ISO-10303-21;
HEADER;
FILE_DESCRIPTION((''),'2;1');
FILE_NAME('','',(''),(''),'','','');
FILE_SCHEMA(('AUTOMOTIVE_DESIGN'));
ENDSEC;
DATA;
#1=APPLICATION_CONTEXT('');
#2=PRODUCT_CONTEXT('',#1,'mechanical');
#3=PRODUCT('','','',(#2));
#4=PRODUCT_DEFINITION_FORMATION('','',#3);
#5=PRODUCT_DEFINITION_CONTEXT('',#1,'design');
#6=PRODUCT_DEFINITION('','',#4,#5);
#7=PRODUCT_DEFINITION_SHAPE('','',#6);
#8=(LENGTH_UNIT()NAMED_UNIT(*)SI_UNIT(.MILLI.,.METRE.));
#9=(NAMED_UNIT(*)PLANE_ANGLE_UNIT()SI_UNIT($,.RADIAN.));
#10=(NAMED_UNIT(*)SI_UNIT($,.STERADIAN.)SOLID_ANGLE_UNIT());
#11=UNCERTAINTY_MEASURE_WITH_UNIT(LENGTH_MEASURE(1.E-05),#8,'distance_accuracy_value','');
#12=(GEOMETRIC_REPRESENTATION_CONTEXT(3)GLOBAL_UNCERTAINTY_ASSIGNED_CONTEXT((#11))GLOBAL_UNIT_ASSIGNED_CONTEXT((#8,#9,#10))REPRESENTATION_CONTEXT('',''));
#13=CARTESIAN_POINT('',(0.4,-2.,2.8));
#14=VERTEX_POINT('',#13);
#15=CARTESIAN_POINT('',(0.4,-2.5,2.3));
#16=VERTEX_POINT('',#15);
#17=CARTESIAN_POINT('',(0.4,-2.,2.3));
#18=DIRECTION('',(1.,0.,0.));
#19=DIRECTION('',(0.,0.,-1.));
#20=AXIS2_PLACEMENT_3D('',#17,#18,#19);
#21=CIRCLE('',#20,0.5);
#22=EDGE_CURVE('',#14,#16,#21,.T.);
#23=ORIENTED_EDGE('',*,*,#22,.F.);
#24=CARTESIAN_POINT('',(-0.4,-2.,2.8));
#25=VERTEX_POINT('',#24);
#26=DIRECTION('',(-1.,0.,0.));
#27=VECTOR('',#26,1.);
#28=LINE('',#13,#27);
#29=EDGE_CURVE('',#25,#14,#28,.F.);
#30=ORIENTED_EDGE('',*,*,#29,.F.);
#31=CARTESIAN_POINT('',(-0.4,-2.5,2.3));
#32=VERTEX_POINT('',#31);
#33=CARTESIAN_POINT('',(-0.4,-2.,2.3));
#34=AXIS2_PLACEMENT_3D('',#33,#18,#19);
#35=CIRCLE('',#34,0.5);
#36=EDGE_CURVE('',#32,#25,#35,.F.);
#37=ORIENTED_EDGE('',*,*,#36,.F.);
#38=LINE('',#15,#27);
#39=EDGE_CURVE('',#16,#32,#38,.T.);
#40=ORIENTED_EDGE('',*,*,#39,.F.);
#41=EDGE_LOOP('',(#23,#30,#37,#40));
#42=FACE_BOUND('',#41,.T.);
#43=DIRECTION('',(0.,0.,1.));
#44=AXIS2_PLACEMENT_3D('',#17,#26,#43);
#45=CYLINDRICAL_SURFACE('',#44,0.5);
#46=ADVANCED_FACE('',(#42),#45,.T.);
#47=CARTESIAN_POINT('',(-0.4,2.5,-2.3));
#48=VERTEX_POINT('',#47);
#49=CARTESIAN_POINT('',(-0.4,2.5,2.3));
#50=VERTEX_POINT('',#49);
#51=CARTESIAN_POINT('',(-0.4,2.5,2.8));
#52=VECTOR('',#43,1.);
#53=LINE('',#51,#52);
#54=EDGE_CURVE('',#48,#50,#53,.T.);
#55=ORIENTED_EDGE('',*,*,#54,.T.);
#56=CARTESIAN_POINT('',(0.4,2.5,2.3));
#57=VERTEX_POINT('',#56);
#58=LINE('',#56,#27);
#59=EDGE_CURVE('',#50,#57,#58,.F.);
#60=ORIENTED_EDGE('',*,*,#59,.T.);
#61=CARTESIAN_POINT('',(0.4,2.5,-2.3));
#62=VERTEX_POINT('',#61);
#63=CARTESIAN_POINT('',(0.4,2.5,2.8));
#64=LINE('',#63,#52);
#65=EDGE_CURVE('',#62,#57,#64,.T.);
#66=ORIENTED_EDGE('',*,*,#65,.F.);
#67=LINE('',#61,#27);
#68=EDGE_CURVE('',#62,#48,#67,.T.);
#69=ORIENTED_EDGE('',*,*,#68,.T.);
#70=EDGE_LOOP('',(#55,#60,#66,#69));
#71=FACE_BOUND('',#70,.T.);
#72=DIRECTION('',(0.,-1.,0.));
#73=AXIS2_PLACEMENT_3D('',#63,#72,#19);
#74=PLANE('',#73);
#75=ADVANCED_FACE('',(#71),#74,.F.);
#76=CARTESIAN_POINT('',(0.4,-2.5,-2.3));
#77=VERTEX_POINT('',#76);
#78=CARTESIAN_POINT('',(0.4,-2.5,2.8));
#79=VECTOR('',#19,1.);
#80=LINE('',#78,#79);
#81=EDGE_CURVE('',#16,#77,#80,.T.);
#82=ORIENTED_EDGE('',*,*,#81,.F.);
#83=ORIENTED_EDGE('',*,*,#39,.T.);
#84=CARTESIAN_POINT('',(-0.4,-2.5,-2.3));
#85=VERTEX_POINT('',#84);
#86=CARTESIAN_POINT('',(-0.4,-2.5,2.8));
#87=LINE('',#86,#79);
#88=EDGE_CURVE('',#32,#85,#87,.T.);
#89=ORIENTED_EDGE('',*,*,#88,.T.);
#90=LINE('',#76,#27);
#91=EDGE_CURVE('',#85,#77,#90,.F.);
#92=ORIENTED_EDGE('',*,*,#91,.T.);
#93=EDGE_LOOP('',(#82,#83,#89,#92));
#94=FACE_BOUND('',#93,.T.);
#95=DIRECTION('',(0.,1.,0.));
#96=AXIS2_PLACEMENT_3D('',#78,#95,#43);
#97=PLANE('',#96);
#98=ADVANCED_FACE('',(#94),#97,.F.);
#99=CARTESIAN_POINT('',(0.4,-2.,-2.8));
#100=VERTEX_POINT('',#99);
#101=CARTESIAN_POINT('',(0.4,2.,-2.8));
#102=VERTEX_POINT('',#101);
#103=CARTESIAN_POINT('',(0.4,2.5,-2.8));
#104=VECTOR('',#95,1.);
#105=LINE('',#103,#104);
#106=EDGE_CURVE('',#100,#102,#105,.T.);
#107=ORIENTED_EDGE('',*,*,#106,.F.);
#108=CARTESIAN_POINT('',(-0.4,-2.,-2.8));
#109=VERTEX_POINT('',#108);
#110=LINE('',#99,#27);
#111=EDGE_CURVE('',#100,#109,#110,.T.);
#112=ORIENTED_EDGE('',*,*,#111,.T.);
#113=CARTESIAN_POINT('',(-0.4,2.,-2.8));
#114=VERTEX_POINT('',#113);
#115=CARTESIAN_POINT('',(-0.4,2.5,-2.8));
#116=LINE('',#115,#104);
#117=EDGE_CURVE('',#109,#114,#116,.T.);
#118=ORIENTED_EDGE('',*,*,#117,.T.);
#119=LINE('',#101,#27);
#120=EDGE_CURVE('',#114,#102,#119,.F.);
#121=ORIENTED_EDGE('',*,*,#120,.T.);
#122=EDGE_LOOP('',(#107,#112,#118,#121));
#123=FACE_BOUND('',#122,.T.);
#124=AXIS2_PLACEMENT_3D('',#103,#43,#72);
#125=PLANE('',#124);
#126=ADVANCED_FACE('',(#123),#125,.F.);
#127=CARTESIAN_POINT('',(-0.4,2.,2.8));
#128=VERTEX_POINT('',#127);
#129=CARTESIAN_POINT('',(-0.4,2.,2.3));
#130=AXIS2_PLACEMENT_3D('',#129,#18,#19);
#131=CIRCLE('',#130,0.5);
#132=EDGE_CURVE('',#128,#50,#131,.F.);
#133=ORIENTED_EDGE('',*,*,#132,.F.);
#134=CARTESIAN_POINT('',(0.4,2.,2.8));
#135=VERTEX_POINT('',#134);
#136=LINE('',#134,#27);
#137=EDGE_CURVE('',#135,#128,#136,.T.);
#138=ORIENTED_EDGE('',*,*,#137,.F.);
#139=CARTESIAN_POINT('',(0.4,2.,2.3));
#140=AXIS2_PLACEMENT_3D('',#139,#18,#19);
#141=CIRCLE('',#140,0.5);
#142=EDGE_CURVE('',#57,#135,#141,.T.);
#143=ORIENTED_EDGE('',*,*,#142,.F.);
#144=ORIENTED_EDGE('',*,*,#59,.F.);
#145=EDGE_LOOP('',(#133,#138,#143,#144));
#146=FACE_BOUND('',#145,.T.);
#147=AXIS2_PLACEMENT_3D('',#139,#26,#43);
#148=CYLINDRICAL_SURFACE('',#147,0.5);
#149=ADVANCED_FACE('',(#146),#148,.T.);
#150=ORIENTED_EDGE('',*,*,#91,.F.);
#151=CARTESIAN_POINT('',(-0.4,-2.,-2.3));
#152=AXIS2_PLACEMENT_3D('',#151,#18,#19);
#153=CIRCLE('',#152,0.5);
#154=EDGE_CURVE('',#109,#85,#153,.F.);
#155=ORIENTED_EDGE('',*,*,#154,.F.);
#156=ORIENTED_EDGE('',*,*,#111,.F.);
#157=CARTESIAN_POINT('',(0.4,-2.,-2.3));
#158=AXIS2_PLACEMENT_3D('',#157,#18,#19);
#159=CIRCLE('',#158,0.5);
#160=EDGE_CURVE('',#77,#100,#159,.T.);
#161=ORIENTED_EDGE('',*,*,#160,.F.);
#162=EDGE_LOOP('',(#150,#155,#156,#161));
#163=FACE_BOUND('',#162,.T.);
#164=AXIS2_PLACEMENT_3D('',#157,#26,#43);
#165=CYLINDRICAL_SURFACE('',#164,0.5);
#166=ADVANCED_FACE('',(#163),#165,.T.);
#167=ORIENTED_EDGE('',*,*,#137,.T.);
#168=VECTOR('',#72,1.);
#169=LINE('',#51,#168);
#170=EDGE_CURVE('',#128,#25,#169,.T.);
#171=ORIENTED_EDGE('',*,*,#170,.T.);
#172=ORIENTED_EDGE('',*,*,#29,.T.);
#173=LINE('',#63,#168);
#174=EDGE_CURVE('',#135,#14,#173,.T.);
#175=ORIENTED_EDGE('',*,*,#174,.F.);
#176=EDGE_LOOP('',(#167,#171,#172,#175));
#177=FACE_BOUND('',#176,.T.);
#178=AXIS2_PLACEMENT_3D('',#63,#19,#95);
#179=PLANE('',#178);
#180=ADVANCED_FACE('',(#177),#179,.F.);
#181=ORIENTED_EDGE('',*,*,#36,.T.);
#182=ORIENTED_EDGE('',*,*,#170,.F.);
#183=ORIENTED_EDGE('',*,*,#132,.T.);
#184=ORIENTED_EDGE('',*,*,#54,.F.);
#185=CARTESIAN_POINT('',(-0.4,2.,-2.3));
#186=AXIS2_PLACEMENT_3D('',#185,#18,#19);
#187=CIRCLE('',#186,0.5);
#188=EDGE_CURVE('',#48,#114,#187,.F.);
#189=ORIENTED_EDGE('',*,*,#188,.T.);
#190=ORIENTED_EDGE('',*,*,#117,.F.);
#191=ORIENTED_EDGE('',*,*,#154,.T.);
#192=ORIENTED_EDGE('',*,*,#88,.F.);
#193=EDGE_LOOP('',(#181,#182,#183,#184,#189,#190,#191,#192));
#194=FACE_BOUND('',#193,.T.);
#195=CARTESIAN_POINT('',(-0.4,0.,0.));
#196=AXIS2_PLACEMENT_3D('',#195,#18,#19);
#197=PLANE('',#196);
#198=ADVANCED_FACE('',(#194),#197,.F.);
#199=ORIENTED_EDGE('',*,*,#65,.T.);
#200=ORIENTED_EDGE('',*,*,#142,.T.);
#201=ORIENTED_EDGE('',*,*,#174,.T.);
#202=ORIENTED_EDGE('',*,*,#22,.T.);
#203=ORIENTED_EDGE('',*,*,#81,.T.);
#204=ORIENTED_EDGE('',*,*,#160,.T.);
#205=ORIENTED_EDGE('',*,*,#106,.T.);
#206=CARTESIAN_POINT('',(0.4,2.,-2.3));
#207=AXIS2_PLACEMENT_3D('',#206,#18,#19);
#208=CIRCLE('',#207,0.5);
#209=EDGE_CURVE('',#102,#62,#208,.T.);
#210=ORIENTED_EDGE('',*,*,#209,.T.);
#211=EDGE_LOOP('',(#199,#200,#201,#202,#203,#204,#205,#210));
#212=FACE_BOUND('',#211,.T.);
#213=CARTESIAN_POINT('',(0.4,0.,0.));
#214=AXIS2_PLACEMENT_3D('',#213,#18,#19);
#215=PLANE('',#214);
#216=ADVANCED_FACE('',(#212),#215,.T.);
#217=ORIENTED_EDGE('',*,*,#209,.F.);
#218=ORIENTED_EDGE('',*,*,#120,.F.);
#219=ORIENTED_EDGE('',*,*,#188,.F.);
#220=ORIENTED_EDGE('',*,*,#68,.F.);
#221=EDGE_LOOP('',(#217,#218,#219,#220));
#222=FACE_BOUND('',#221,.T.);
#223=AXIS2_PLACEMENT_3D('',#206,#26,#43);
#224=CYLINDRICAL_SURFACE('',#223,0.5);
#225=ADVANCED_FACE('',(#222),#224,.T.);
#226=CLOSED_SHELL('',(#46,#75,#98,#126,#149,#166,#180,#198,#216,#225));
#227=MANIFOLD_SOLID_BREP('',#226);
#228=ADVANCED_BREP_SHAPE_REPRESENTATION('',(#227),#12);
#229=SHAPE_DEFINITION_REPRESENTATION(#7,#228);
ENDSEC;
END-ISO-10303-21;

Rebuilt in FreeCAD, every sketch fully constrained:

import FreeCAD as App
import Part
import Sketcher


def edges_at(feature, points):
    """Names of the edges that pass closest to the given points."""
    edges = feature.Shape.Edges
    near = lambda p: min(range(len(edges)), key=lambda i: edges[i].distToShape(Part.Vertex(*p))[0])
    return sorted({f"Edge{near(p) + 1}" for p in points})


def add_polygon(sketch, points):
    """Adds a closed chain of lines whose ends are joined by coincident constraints."""
    first, n = sketch.GeometryCount, len(points)
    for a, b in zip(points, points[1:] + points[:1]):
        sketch.addGeometry(Part.LineSegment(App.Vector(*a, 0), App.Vector(*b, 0)), False)
    for i in range(n):
        sketch.addConstraint(Sketcher.Constraint("Coincident", first + i, 2, first + (i + 1) % n, 1))

doc = App.newDocument("Part")
body = doc.addObject("PartDesign::Body", "Body")

# Sketch on YZ plane
sketch1 = doc.addObject("Sketcher::SketchObject", "Sketch")
body.addObject(sketch1)
sketch1.AttachmentSupport = (doc.YZ_Plane, [""])
sketch1.MapMode = "FlatFace"
add_polygon(sketch1, [(2, 3), (-2, 3), (-2, -3), (2, -3)])  # lines 0-3
sketch1.addConstraint([
    Sketcher.Constraint("Horizontal", 0),
    Sketcher.Constraint("Vertical", 1),
    Sketcher.Constraint("Horizontal", 2),
    Sketcher.Constraint("Vertical", 3),
    Sketcher.Constraint("Symmetric", 0, 2, 2, 2, -1, 1),
    Sketcher.Constraint("DistanceX", 0, 2, 0, 1, 5.0),
    Sketcher.Constraint("DistanceY", 1, 2, 1, 1, 5.6),
])
pad1 = doc.addObject("PartDesign::Pad", "Pad")
body.addObject(pad1)
pad1.Profile = sketch1
pad1.Length = 0.8
pad1.Midplane = True
doc.recompute()

fillet = doc.addObject("PartDesign::Fillet", "Fillet")
body.addObject(fillet)
fillet.Base = (pad1, edges_at(pad1, [
    (0, -2.5, -2.8),
    (0, -2.5, 2.8),
    (0, 2.5, 2.8),
    (0, 2.5, -2.8),
]))
fillet.Radius = 0.5

doc.recompute()
